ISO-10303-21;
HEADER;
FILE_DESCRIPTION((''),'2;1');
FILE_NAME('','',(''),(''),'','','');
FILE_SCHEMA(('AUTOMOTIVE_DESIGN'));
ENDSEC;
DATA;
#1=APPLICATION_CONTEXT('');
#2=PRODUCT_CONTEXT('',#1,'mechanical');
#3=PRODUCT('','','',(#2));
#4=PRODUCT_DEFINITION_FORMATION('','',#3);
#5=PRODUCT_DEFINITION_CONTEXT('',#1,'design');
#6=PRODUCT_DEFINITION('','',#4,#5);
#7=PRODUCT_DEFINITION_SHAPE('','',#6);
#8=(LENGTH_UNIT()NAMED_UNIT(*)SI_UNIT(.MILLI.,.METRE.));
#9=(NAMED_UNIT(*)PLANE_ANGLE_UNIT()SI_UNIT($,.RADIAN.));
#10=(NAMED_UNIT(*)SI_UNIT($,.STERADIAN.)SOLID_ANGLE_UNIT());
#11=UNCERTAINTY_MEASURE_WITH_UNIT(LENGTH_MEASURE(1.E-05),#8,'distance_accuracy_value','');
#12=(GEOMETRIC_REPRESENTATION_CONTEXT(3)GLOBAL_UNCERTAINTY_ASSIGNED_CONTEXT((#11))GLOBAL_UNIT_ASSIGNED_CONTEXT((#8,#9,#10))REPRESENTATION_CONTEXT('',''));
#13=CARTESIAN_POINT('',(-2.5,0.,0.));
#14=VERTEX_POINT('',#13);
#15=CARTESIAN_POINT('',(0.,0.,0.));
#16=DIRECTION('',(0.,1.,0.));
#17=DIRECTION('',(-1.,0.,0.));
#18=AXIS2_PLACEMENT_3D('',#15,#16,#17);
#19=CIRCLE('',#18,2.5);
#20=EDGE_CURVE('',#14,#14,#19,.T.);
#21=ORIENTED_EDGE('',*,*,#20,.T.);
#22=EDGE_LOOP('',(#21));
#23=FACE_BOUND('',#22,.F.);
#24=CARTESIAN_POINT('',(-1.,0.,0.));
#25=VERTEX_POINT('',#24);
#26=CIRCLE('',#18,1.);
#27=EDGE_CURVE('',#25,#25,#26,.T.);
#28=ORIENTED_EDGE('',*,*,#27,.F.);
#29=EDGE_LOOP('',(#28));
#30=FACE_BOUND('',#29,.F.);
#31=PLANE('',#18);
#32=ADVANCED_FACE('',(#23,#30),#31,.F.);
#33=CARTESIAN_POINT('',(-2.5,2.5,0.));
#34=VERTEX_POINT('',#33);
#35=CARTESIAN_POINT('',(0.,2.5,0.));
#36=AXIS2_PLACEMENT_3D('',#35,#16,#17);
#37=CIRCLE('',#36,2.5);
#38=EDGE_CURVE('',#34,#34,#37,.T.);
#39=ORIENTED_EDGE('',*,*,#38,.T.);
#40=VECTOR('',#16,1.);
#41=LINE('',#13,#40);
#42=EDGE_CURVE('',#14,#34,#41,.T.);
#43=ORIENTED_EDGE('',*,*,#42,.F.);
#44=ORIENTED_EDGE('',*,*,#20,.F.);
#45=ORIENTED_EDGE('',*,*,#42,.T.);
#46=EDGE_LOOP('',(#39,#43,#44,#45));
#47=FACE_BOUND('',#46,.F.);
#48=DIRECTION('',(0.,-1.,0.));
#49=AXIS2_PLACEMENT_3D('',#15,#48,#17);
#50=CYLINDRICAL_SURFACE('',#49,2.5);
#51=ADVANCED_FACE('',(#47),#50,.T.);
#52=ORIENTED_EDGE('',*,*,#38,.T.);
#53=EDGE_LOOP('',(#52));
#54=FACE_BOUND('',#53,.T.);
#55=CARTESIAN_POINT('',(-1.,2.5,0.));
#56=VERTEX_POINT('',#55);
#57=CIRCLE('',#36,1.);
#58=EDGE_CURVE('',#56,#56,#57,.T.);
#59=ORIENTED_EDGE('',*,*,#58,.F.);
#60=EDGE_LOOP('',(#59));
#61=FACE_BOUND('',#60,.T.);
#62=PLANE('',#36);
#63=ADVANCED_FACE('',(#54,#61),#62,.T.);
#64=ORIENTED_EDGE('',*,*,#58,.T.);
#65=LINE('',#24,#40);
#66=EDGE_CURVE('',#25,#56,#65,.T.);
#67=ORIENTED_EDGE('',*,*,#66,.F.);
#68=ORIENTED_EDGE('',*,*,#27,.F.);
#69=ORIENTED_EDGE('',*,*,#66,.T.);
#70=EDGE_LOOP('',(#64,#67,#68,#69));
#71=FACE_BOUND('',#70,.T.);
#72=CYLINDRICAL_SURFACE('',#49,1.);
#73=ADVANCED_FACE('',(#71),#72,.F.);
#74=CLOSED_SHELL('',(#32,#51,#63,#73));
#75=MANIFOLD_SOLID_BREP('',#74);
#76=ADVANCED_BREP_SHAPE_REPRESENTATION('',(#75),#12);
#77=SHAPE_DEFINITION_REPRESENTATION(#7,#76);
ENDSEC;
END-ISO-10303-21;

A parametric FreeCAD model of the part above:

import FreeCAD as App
import Part
import Sketcher
from FreeCAD import Vector

doc = App.newDocument("Part")
body = doc.addObject("PartDesign::Body", "Body")

sketch1 = body.newObject("Sketcher::SketchObject", "Sketch")
sketch1.AttachmentSupport = (doc.getObject("XZ_Plane"), [""])
sketch1.MapMode = "FlatFace"
sketch1.addGeometry(Part.Circle(Vector(0, 0, 0), Vector(0, 0, 1), 2.5), False)
sketch1.addGeometry(Part.Circle(Vector(0, 0, 0), Vector(0, 0, 1), 1), False)
sketch1.addConstraint(Sketcher.Constraint("Coincident", 0, 3, -1, 1))
sketch1.addConstraint(Sketcher.Constraint("Coincident", 1, 3, -1, 1))
sketch1.addConstraint(Sketcher.Constraint("Diameter", 0, 5.0))
sketch1.addConstraint(Sketcher.Constraint("Diameter", 1, 2.0))
pad1 = body.newObject("PartDesign::Pad", "Pad")
pad1.Profile = sketch1
pad1.Length = 2.5
pad1.Reversed = True

doc.recompute()
